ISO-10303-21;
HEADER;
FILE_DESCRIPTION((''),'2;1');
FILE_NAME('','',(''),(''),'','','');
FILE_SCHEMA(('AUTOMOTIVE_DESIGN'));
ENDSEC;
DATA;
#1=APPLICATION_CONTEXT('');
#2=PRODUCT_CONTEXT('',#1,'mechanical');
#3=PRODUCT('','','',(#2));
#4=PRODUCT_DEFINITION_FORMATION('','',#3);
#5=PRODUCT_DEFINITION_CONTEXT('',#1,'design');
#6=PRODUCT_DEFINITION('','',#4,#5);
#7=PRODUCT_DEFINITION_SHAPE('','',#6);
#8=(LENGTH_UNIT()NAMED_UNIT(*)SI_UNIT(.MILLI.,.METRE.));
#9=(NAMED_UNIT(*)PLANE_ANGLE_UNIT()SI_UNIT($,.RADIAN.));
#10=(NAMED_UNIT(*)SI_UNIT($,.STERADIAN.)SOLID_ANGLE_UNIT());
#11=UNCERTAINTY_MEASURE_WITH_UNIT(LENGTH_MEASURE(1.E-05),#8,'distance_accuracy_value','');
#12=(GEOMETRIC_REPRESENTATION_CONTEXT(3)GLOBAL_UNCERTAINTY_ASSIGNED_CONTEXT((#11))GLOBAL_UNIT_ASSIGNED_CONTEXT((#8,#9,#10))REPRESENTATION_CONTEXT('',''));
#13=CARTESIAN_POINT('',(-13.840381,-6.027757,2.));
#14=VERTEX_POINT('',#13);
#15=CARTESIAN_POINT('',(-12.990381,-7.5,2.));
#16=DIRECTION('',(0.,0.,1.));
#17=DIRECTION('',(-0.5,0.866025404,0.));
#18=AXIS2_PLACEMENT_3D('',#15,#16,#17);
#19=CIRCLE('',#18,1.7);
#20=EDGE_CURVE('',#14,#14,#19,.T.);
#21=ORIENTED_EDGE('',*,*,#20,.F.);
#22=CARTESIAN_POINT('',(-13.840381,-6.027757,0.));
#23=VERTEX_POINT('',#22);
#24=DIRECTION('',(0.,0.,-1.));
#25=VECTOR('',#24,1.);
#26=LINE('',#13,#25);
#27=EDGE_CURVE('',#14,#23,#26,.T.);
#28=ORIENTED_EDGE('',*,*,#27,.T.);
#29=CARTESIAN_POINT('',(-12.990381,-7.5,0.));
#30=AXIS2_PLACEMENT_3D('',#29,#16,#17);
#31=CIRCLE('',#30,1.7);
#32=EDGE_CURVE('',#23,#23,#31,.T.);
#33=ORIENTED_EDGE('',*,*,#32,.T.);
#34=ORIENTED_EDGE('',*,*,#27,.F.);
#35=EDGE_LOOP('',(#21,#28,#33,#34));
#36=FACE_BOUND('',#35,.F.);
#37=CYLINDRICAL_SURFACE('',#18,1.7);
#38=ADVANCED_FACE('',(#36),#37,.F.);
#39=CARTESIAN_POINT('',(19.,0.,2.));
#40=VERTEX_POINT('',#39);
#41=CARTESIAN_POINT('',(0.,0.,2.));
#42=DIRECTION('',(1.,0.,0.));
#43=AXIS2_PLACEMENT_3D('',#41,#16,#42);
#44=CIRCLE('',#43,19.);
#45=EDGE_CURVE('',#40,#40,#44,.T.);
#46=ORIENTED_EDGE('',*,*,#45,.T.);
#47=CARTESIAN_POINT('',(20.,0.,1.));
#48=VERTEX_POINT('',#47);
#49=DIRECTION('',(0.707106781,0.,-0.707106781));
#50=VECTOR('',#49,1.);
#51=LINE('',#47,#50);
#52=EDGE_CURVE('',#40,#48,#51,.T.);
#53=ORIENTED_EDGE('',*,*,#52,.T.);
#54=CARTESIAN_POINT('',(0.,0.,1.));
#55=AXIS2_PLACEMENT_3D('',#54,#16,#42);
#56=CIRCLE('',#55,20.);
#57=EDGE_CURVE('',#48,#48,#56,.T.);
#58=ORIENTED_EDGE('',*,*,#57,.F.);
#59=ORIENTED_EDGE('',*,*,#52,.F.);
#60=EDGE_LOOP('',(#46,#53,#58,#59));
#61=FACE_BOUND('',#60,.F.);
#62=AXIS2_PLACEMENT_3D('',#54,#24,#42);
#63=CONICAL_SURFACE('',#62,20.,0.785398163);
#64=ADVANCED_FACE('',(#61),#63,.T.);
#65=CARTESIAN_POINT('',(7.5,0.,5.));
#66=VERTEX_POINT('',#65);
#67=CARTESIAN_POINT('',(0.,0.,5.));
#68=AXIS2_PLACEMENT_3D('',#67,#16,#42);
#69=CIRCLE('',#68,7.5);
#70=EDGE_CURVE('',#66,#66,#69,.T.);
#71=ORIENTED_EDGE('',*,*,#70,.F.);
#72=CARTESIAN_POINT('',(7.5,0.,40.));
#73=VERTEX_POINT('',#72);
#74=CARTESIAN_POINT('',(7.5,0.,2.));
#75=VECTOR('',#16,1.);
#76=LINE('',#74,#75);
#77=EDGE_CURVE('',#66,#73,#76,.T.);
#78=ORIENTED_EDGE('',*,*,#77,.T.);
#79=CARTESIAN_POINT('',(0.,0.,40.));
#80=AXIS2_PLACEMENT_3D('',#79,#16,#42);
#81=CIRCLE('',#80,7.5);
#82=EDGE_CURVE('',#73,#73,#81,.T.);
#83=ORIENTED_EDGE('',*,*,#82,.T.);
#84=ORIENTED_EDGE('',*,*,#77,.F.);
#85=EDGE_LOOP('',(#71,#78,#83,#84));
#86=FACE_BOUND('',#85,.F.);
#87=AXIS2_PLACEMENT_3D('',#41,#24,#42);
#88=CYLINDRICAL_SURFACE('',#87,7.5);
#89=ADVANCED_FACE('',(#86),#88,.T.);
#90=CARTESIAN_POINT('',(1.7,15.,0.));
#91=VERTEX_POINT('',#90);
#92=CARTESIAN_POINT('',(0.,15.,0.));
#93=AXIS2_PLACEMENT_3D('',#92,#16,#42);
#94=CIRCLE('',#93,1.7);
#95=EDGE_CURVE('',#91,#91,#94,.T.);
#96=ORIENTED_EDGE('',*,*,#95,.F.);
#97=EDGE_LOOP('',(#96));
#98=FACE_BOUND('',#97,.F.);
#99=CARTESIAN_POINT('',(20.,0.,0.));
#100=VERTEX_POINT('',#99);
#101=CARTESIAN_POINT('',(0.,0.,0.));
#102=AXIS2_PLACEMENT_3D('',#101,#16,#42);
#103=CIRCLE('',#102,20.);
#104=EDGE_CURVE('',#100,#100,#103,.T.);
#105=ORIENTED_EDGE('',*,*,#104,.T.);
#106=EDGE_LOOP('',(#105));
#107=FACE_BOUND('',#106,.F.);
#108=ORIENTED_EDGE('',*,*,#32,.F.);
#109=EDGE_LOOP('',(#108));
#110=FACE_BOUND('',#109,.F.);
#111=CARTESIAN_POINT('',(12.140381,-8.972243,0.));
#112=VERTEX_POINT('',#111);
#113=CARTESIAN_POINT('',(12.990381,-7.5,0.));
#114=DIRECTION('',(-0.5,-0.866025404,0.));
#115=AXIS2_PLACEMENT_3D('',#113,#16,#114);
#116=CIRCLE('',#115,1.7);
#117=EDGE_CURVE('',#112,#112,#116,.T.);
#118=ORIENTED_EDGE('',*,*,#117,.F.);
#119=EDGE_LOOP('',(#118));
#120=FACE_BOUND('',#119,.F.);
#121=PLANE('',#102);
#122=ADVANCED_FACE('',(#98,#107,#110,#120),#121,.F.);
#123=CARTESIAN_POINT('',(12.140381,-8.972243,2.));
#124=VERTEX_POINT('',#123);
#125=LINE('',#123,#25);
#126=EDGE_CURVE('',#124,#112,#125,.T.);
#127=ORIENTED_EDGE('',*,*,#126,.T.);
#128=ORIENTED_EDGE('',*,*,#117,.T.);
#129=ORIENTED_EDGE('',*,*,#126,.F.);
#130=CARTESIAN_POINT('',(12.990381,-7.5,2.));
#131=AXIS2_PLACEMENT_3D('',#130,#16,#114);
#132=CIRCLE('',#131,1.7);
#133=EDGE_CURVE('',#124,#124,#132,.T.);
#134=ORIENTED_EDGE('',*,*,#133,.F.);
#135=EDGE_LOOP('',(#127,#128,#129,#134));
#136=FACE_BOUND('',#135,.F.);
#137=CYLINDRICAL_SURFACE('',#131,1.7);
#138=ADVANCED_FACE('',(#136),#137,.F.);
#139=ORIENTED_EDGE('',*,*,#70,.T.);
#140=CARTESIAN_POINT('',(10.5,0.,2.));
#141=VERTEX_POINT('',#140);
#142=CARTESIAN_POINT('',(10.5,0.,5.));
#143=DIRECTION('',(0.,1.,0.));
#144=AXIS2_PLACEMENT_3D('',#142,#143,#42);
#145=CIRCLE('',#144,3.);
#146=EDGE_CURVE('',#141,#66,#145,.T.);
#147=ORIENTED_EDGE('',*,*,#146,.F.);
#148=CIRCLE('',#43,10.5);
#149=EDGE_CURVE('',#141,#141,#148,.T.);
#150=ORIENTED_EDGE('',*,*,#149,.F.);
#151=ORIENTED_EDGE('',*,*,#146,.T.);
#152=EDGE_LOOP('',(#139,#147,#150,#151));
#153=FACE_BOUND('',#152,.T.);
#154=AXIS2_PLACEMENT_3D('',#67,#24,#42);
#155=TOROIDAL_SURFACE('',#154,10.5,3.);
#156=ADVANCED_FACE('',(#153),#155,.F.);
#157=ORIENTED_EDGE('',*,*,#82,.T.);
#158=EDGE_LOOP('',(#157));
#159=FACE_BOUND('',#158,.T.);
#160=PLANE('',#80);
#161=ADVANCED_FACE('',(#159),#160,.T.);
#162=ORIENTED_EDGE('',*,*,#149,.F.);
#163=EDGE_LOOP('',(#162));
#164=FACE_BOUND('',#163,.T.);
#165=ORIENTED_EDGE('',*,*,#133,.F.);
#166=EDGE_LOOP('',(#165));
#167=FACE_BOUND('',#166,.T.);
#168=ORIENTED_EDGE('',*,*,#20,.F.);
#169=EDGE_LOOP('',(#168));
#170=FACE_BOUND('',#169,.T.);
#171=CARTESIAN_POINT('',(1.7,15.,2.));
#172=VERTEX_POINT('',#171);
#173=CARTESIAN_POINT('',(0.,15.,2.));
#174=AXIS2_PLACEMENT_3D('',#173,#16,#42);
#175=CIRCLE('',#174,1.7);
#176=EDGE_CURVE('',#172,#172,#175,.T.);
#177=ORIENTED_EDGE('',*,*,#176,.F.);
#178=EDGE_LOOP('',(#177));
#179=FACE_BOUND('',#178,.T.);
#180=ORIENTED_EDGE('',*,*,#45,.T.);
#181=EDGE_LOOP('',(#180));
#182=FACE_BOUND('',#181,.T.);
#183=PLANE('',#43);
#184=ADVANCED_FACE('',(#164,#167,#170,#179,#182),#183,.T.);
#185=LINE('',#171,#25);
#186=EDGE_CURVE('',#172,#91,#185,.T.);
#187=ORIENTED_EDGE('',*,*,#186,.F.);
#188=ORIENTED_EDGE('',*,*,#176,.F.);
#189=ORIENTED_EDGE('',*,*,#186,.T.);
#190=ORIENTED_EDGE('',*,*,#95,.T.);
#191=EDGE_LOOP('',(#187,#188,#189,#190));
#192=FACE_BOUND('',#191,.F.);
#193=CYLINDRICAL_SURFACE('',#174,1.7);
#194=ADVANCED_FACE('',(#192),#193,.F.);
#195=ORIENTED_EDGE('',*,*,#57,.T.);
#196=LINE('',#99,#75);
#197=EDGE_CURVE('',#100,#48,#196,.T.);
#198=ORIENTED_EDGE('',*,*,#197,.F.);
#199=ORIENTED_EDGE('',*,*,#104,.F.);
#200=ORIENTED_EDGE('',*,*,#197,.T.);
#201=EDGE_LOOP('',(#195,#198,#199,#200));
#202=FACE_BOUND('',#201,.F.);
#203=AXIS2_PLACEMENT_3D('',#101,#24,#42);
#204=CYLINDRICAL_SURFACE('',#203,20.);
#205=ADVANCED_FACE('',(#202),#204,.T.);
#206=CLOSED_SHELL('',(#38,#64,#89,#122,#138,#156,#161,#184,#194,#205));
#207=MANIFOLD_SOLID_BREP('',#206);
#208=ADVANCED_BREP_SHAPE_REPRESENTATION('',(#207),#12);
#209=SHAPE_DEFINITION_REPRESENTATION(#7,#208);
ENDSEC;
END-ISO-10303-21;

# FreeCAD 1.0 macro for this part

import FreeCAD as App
import Part
import Sketcher

V = App.Vector


def edges_at(feature, points):
    """Names of the edges that pass closest to the given points."""
    edges = feature.Shape.Edges
    near = lambda p: min(range(len(edges)), key=lambda i: edges[i].distToShape(Part.Vertex(*p))[0])
    return sorted({f"Edge{near(p) + 1}" for p in points})

doc = App.newDocument("Part")
params = doc.addObject("Spreadsheet::Sheet", "Params")
for row, (alias, value) in enumerate([
    ("sketch1_diameter", "40 mm"),
    ("pad1_length", "2 mm"),
    ("sketch2_diameter", "15 mm"),
    ("pad2_length", "38 mm"),
    ("sketch3_diameter", "3.4 mm"),
    ("fillet_radius", "3 mm"),
    ("chamfer_size", "1 mm"),
], start=1):
    params.set(f"A{row}", alias)
    params.set(f"B{row}", "=" + value)
    params.setAlias(f"B{row}", alias)

body = doc.addObject("PartDesign::Body", "Body")

# Sketch on XY plane
sketch1 = body.newObject("Sketcher::SketchObject", "Sketch")
sketch1.AttachmentSupport = (doc.getObject("XY_Plane"), [""])
sketch1.MapMode = "FlatFace"
sketch1.addGeometry(Part.Circle(V(0, 0, 0), V(0, 0, 1), 20), False)
sketch1.addConstraint([
    Sketcher.Constraint("Coincident", 0, 3, -1, 1),
    Sketcher.Constraint("Diameter", 0, 40.0),
])
sketch1.setExpression("Constraints[1]", "Params.sketch1_diameter")
pad1 = body.newObject("PartDesign::Pad", "Pad")
pad1.Profile = sketch1
pad1.setExpression("Length", "Params.pad1_length")

# Sketch on XY plane
sketch2 = body.newObject("Sketcher::SketchObject", "Sketch001")
sketch2.AttachmentSupport = (doc.getObject("XY_Plane"), [""])
sketch2.MapMode = "FlatFace"
sketch2.AttachmentOffset = App.Placement(V(0, 0, 2), App.Rotation())
sketch2.addGeometry(Part.Circle(V(0, 0, 0), V(0, 0, 1), 7.5), False)
sketch2.addConstraint([
    Sketcher.Constraint("Coincident", 0, 3, -1, 1),
    Sketcher.Constraint("Diameter", 0, 15.0),
])
sketch2.setExpression("Constraints[1]", "Params.sketch2_diameter")
pad2 = body.newObject("PartDesign::Pad", "Pad001")
pad2.Profile = sketch2
pad2.setExpression("Length", "Params.pad2_length")

# Sketch on XY plane
sketch3 = body.newObject("Sketcher::SketchObject", "Sketch002")
sketch3.AttachmentSupport = (doc.getObject("XY_Plane"), [""])
sketch3.MapMode = "FlatFace"
sketch3.AttachmentOffset = App.Placement(V(0, 0, 2), App.Rotation())
sketch3.addGeometry(Part.Circle(V(0, 15, 0), V(0, 0, 1), 1.7), False)
sketch3.addConstraint([
    Sketcher.Constraint("PointOnObject", 0, 3, -2),
    Sketcher.Constraint("Diameter", 0, 3.4),
    Sketcher.Constraint("DistanceY", -1, 1, 0, 3, 15.0),
])
sketch3.setExpression("Constraints[1]", "Params.sketch3_diameter")
pocket1 = body.newObject("PartDesign::Pocket", "Pocket")
pocket1.Profile = sketch3
pocket1.Type = "ThroughAll"
doc.recompute()

polarpattern = body.newObject("PartDesign::PolarPattern", "PolarPattern")
polarpattern.Originals = [pocket1]
polarpattern.Axis = (doc.getObject("Z_Axis"), [""])
polarpattern.Angle = 360
polarpattern.Occurrences = 3
body.Tip = polarpattern
doc.recompute()

fillet = body.newObject("PartDesign::Fillet", "Fillet")
fillet.Base = (polarpattern, edges_at(polarpattern, [(-7.5, 0, 2)]))
fillet.setExpression("Radius", "Params.fillet_radius")
doc.recompute()

chamfer = body.newObject("PartDesign::Chamfer", "Chamfer")
chamfer.Base = (fillet, edges_at(fillet, [(-20, 0, 2)]))
chamfer.setExpression("Size", "Params.chamfer_size")

doc.recompute()
